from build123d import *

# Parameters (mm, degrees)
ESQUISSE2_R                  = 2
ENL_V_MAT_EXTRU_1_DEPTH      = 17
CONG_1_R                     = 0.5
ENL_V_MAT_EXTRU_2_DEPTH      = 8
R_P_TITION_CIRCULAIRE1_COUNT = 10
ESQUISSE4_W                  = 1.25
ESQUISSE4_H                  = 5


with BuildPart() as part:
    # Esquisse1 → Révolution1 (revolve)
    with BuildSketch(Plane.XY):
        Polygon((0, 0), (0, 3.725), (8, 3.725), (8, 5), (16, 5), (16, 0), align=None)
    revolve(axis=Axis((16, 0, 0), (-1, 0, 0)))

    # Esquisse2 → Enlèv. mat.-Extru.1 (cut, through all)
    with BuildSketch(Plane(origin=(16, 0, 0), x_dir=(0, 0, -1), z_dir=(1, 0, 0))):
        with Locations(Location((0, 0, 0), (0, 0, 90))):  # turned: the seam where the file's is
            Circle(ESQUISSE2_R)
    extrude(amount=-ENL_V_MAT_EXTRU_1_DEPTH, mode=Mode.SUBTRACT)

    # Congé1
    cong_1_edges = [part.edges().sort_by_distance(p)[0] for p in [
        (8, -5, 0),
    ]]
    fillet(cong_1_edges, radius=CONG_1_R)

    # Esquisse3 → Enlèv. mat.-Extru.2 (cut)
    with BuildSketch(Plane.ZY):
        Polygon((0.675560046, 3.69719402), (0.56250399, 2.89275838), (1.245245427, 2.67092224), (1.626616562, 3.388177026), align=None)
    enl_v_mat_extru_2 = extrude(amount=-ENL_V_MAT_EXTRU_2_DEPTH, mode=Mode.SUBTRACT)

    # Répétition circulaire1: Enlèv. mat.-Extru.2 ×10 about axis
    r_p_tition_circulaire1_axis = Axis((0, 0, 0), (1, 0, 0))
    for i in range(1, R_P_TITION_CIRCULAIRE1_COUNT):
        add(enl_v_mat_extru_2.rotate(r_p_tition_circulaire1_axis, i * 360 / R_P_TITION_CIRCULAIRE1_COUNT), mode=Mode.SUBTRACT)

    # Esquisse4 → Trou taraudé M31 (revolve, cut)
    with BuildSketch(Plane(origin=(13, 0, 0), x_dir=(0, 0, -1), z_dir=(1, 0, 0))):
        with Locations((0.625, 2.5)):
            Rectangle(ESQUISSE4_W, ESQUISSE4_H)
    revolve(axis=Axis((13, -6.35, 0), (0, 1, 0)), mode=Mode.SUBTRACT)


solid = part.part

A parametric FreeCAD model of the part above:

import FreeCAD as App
import Part
import Sketcher
from FreeCAD import Vector
Q = App.Units.Quantity


def edges_at(feature, points):
    """Names of the edges that pass closest to the given points."""
    edges = feature.Shape.Edges
    near = lambda p: min(range(len(edges)), key=lambda i: edges[i].distToShape(Part.Vertex(*p))[0])
    return sorted({f"Edge{near(p) + 1}" for p in points})


def add_polygon(sketch, points):
    """Adds a closed chain of lines whose ends are joined by coincident constraints."""
    first, n = sketch.GeometryCount, len(points)
    for a, b in zip(points, points[1:] + points[:1]):
        sketch.addGeometry(Part.LineSegment(App.Vector(*a, 0), App.Vector(*b, 0)), False)
    for i in range(n):
        sketch.addConstraint(Sketcher.Constraint("Coincident", first + i, 2, first + (i + 1) % n, 1))

doc = App.newDocument("Part")
body = doc.addObject("PartDesign::Body", "Body")

# Sketch on XY plane
sketch1 = body.newObject("Sketcher::SketchObject", "Sketch")
sketch1.AttachmentSupport = (doc.getObject("XY_Plane"), [""])
sketch1.MapMode = "FlatFace"
add_polygon(sketch1, [(0, 3.7), (0, 0), (16, 0), (16, 5), (8, 5), (8, 3.7)])  # lines 0-5
sketch1.addConstraint([
    Sketcher.Constraint("Vertical", 0),
    Sketcher.Constraint("Horizontal", 1),
    Sketcher.Constraint("Vertical", 2),
    Sketcher.Constraint("Horizontal", 3),
    Sketcher.Constraint("Vertical", 4),
    Sketcher.Constraint("Horizontal", 5),
    Sketcher.Constraint("Coincident", 0, 2, -1, 1),
    Sketcher.Constraint("Equal", 3, 5),
    Sketcher.Constraint("DistanceX", 1, 1, 1, 2, 16.0),
    Sketcher.Constraint("DistanceY", 2, 1, 2, 2, 5.0),
    Sketcher.Constraint("DistanceY", 0, 2, 0, 1, 3.725),
])
revolution = body.newObject("PartDesign::Revolution", "Revolution")
revolution.Profile = sketch1
revolution.ReferenceAxis = (sketch1, ["H_Axis"])
revolution.Angle = 360

# Sketch on YZ plane
sketch2 = body.newObject("Sketcher::SketchObject", "Sketch001")
sketch2.AttachmentSupport = (doc.getObject("YZ_Plane"), [""])
sketch2.MapMode = "FlatFace"
sketch2.AttachmentOffset = App.Placement(Vector(0, 0, 16), App.Rotation())
sketch2.addGeometry(Part.Circle(Vector(0, 0, 0), Vector(0, 0, 1), 2), False)
sketch2.addConstraint([
    Sketcher.Constraint("Coincident", 0, 3, -1, 1),
    Sketcher.Constraint("Diameter", 0, 4.0),
])
pocket1 = body.newObject("PartDesign::Pocket", "Pocket")
pocket1.Profile = sketch2
pocket1.Type = "ThroughAll"
doc.recompute()

fillet = body.newObject("PartDesign::Fillet", "Fillet")
fillet.Base = (pocket1, edges_at(pocket1, [(8, -5, 0)]))
fillet.Radius = 0.5

# Sketch on YZ plane
sketch3 = body.newObject("Sketcher::SketchObject", "Sketch002")
sketch3.AttachmentSupport = (doc.getObject("YZ_Plane"), [""])
sketch3.MapMode = "FlatFace"
add_polygon(sketch3, [(3.7, 0.7), (2.9, 0.6), (2.7, 1.2), (3.4, 1.6)])  # lines 0-3
sketch3.addConstraint([
    Sketcher.Constraint("Parallel", 1, 3),
    Sketcher.Constraint("Equal", 0, 2),
    Sketcher.Constraint("Angle", 0, Q("-172 deg")),
    Sketcher.Constraint("Angle", 1, Q("108 deg")),
    Sketcher.Constraint("Distance", 3, 1.0),
    Sketcher.Constraint("Distance", 0, 0.812341),
    Sketcher.Constraint("DistanceX", -1, 1, 0, 2, 2.892758),
    Sketcher.Constraint("DistanceY", -1, 1, 3, 2, 0.67556),
])
pocket2 = body.newObject("PartDesign::Pocket", "Pocket001")
pocket2.Profile = sketch3
pocket2.Length = 8
pocket2.Reversed = True
doc.recompute()

polarpattern = body.newObject("PartDesign::PolarPattern", "PolarPattern")
polarpattern.Originals = [pocket2]
polarpattern.Axis = (doc.getObject("X_Axis"), [""])
polarpattern.Angle = 360
polarpattern.Occurrences = 10
body.Tip = polarpattern

# Sketch on YZ plane
sketch4 = body.newObject("Sketcher::SketchObject", "Sketch003")
sketch4.AttachmentSupport = (doc.getObject("YZ_Plane"), [""])
sketch4.MapMode = "FlatFace"
sketch4.AttachmentOffset = App.Placement(Vector(0, 0, 13), App.Rotation())
add_polygon(sketch4, [(5, 0), (0, 0), (0, -1.2), (5, -1.2)])  # lines 0-3
sketch4.addConstraint([
    Sketcher.Constraint("Horizontal", 0),
    Sketcher.Constraint("Vertical", 1),
    Sketcher.Constraint("Horizontal", 2),
    Sketcher.Constraint("Vertical", 3),
    Sketcher.Constraint("Coincident", 0, 2, -1, 1),
    Sketcher.Constraint("DistanceX", 0, 2, 0, 1, 5.0),
    Sketcher.Constraint("DistanceY", 1, 2, 1, 1, 1.25),
])
groove = body.newObject("PartDesign::Groove", "Groove")
groove.Profile = sketch4
groove.ReferenceAxis = (sketch4, ["H_Axis"])
groove.Angle = 360

doc.recompute()
